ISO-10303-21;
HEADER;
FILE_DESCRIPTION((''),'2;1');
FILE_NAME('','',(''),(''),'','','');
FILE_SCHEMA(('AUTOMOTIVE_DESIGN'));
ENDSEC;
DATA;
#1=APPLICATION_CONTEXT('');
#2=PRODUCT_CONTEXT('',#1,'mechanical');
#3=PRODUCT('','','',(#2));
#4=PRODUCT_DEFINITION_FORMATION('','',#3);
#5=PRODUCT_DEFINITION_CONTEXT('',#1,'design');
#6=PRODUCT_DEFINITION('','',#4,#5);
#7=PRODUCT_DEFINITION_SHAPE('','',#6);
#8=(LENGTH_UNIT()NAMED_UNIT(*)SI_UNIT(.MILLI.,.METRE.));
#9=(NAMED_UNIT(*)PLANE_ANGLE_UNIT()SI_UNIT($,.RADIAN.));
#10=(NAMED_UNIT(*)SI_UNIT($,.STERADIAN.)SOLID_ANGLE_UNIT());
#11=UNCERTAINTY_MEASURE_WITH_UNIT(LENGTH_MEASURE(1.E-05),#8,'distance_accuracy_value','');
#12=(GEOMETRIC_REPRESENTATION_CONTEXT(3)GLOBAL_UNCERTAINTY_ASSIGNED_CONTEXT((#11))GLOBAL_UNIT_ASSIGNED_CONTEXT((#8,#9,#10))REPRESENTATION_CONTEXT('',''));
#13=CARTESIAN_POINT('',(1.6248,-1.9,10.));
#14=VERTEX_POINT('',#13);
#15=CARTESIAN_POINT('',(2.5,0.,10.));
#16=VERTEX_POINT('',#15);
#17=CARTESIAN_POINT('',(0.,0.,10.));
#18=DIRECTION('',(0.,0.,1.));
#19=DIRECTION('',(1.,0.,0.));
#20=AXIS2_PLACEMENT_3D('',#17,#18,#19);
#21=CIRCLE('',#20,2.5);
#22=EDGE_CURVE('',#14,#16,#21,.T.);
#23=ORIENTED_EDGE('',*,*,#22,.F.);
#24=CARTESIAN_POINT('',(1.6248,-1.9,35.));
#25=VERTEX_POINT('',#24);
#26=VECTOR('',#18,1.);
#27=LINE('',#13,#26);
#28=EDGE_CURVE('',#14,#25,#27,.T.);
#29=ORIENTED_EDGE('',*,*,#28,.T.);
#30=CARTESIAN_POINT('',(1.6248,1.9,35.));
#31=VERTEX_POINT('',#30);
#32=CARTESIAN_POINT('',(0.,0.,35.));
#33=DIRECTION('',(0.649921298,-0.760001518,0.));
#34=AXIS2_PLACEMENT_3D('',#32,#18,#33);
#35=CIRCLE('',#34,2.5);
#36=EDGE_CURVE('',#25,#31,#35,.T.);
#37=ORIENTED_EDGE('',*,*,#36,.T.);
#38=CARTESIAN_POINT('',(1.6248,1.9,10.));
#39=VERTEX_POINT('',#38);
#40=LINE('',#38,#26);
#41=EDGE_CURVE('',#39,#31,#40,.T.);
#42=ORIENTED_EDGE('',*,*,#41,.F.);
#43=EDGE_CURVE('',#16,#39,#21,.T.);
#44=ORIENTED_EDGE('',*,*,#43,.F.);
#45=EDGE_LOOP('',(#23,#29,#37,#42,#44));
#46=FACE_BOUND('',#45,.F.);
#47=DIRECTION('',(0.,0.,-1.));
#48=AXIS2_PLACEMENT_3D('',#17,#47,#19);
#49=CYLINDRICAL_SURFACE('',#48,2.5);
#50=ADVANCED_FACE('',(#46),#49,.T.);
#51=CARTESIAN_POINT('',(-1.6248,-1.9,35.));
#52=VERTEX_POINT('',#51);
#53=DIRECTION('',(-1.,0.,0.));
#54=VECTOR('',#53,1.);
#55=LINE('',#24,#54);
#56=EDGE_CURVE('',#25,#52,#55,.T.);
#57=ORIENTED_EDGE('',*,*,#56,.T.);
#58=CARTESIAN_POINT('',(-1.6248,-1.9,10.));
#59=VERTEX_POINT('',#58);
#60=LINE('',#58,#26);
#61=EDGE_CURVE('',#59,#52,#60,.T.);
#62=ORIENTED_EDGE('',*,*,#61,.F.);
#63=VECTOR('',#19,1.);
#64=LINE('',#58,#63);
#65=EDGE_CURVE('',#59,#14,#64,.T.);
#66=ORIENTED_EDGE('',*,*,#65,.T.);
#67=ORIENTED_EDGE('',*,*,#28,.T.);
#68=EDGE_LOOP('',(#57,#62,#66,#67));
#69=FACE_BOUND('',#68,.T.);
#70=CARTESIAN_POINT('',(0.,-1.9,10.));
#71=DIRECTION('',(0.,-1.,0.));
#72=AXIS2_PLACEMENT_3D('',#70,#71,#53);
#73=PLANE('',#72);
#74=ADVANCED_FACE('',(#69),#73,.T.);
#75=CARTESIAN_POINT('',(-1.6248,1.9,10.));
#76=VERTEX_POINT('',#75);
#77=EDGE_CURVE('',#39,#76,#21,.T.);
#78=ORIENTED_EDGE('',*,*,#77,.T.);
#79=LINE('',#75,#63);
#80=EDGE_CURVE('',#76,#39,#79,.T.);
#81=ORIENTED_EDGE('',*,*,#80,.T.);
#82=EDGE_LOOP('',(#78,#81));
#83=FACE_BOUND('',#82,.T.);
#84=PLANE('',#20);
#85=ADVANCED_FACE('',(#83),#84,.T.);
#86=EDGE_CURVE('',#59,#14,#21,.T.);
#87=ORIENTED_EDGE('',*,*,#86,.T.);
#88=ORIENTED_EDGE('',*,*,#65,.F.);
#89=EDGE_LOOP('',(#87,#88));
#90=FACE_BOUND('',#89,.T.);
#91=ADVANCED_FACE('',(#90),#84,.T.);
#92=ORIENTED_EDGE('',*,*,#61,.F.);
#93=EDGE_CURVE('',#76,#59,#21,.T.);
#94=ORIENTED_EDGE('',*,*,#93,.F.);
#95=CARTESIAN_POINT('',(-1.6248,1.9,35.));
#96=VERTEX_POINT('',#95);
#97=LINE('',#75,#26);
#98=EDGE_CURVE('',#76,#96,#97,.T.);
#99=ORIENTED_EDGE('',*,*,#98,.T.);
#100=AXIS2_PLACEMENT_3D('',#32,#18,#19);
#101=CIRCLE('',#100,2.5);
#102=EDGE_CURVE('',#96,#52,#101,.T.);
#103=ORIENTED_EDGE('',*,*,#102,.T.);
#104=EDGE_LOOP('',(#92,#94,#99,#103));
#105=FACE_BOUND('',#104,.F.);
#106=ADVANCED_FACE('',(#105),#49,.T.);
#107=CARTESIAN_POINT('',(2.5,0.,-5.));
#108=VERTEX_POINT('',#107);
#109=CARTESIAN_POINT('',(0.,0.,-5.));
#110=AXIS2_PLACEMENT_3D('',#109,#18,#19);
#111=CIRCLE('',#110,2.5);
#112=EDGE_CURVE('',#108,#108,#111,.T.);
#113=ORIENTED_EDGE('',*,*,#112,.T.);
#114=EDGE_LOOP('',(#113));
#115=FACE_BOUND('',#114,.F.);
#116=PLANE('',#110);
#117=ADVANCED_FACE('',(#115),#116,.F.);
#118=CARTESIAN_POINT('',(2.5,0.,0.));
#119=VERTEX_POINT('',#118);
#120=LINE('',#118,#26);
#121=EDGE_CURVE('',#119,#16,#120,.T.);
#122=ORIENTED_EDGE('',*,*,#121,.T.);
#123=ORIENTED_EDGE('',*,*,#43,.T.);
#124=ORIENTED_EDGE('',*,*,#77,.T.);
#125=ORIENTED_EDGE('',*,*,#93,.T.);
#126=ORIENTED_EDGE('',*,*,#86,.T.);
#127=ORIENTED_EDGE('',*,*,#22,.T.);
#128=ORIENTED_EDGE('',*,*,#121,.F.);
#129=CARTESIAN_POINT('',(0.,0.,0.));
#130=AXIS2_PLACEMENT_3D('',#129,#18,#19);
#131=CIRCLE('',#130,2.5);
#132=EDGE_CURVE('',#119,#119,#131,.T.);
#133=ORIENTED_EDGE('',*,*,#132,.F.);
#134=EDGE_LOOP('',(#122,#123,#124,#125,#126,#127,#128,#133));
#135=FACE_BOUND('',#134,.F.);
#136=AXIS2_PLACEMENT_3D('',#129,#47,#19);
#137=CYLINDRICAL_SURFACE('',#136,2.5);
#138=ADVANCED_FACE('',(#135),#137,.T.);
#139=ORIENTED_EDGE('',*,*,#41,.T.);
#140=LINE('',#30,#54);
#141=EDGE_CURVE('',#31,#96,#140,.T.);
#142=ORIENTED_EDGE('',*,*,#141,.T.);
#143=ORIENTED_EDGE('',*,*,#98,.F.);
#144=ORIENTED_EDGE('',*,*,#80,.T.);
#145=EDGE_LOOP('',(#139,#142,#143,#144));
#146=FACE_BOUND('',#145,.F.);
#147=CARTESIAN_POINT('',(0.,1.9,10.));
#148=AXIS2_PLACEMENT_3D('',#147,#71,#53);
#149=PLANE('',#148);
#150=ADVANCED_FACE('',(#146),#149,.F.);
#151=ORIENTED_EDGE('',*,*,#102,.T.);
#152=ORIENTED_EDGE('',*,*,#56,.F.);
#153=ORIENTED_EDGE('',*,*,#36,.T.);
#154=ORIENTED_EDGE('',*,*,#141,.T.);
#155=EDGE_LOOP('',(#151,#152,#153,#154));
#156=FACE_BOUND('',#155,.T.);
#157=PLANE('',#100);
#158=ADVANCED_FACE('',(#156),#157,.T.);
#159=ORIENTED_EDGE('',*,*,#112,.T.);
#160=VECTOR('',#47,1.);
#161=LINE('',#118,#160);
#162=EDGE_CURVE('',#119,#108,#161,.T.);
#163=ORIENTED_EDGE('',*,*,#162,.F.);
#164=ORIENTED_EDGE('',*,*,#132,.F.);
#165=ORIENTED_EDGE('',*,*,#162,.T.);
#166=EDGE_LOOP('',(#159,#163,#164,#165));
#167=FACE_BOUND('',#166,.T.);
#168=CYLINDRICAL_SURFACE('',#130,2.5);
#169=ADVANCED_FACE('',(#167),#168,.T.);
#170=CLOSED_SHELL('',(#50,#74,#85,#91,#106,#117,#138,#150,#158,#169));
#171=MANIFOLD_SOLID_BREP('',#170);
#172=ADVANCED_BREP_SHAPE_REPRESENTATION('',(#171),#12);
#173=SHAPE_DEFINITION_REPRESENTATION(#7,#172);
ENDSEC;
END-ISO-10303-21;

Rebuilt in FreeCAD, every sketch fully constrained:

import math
import FreeCAD as App
import Part
import Sketcher
Q = App.Units.Quantity

doc = App.newDocument("Part")
body = doc.addObject("PartDesign::Body", "Body")

# Sketch on XY plane
sketch1 = body.newObject("Sketcher::SketchObject", "Sketch")
sketch1.AttachmentSupport = (doc.getObject("XY_Plane"), [""])
sketch1.MapMode = "FlatFace"
sketch1.addGeometry(Part.Circle(App.Vector(0, 0, 0), App.Vector(0, 0, 1), 2.5), False)
sketch1.addConstraint([
    Sketcher.Constraint("Coincident", 0, 3, -1, 1),
    Sketcher.Constraint("Diameter", 0, Q("5 mm")),
])
pad1 = body.newObject("PartDesign::Pad", "Pad")
pad1.Profile = sketch1
pad1.Type = "TwoLengths"
pad1.Length = 10
pad1.Length2 = 5

# Sketch on XY plane
sketch2 = body.newObject("Sketcher::SketchObject", "Sketch001")
sketch2.AttachmentSupport = (doc.getObject("XY_Plane"), [""])
sketch2.MapMode = "FlatFace"
sketch2.AttachmentOffset = App.Placement(App.Vector(0, 0, 10), App.Rotation())
sketch2.addGeometry([
    Part.LineSegment(App.Vector(-1.6248, -1.9, 0), App.Vector(1.6248, -1.9, 0)),
    Part.ArcOfCircle(Part.Circle(App.Vector(0, 0, 0), App.Vector(0, 0, 1), 2.5), math.radians(-49.464332), math.radians(49.464332)),
    Part.LineSegment(App.Vector(1.6248, 1.9, 0), App.Vector(-1.6248, 1.9, 0)),
    Part.ArcOfCircle(Part.Circle(App.Vector(0, 0, 0), App.Vector(0, 0, 1), 2.5), math.radians(130.535668), math.radians(229.464332)),
], False)
sketch2.addConstraint([
    Sketcher.Constraint("Coincident", 0, 2, 1, 1),
    Sketcher.Constraint("Coincident", 1, 2, 2, 1),
    Sketcher.Constraint("Coincident", 2, 2, 3, 1),
    Sketcher.Constraint("Coincident", 3, 2, 0, 1),
    Sketcher.Constraint("Horizontal", 0),
    Sketcher.Constraint("Horizontal", 2),
    Sketcher.Constraint("Coincident", 1, 3, -1, 1),
    Sketcher.Constraint("Coincident", 3, 3, -1, 1),
    Sketcher.Constraint("Equal", 1, 3),
    Sketcher.Constraint("Vertical", 0, 2, 1, 2),
    Sketcher.Constraint("DistanceY", 0, 2, -1, 1, Q("1.9 mm")),
    Sketcher.Constraint("Radius", 1, Q("2.5 mm")),
])
pad2 = body.newObject("PartDesign::Pad", "Pad001")
pad2.Profile = sketch2
pad2.Length = 25

doc.recompute()
